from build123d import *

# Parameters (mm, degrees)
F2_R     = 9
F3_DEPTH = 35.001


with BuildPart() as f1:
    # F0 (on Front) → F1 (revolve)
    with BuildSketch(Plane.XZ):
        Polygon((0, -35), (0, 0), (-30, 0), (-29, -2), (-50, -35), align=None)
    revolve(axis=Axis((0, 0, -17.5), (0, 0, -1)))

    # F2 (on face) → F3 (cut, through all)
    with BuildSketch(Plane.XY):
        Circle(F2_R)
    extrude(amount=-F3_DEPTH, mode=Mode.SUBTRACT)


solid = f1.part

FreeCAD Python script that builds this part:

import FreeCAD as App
import Part
import Sketcher

V = App.Vector
Q = App.Units.Quantity


def add_polygon(sketch, points):
    """Adds a closed chain of lines whose ends are joined by coincident constraints."""
    first, n = sketch.GeometryCount, len(points)
    for a, b in zip(points, points[1:] + points[:1]):
        sketch.addGeometry(Part.LineSegment(App.Vector(*a, 0), App.Vector(*b, 0)), False)
    for i in range(n):
        sketch.addConstraint(Sketcher.Constraint("Coincident", first + i, 2, first + (i + 1) % n, 1))

doc = App.newDocument("Part")
body = doc.addObject("PartDesign::Body", "Body")

# Sketch on XZ plane
sketch1 = body.newObject("Sketcher::SketchObject", "Sketch")
sketch1.AttachmentSupport = (doc.getObject("XZ_Plane"), [""])
sketch1.MapMode = "FlatFace"
add_polygon(sketch1, [(0, -35), (0, 0), (-30, 0), (-29, -2), (-50, -35)])  # lines 0-4
sketch1.addConstraint([
    Sketcher.Constraint("Vertical", 0),
    Sketcher.Constraint("Horizontal", 1),
    Sketcher.Constraint("Horizontal", 4),
    Sketcher.Constraint("Coincident", 0, 2, -1, 1),
    Sketcher.Constraint("DistanceX", 1, 2, 1, 1, Q("30 mm")),
    Sketcher.Constraint("DistanceX", 4, 1, 4, 2, Q("50 mm")),
    Sketcher.Constraint("DistanceY", 0, 1, 0, 2, Q("35 mm")),
    Sketcher.Constraint("DistanceX", 2, 2, -1, 1, Q("29 mm")),
    Sketcher.Constraint("DistanceY", 2, 2, -1, 1, Q("2 mm")),
])
revolution = body.newObject("PartDesign::Revolution", "Revolution")
revolution.Profile = sketch1
revolution.ReferenceAxis = (sketch1, ["V_Axis"])
revolution.Angle = 360

# Sketch on XY plane
sketch2 = body.newObject("Sketcher::SketchObject", "Sketch001")
sketch2.AttachmentSupport = (doc.getObject("XY_Plane"), [""])
sketch2.MapMode = "FlatFace"
sketch2.addGeometry(Part.Circle(V(0, 0, 0), V(0, 0, 1), 9), False)
sketch2.addConstraint([
    Sketcher.Constraint("Coincident", 0, 3, -1, 1),
    Sketcher.Constraint("Diameter", 0, Q("18 mm")),
])
pocket1 = body.newObject("PartDesign::Pocket", "Pocket")
pocket1.Profile = sketch2
pocket1.Type = "ThroughAll"

doc.recompute()
